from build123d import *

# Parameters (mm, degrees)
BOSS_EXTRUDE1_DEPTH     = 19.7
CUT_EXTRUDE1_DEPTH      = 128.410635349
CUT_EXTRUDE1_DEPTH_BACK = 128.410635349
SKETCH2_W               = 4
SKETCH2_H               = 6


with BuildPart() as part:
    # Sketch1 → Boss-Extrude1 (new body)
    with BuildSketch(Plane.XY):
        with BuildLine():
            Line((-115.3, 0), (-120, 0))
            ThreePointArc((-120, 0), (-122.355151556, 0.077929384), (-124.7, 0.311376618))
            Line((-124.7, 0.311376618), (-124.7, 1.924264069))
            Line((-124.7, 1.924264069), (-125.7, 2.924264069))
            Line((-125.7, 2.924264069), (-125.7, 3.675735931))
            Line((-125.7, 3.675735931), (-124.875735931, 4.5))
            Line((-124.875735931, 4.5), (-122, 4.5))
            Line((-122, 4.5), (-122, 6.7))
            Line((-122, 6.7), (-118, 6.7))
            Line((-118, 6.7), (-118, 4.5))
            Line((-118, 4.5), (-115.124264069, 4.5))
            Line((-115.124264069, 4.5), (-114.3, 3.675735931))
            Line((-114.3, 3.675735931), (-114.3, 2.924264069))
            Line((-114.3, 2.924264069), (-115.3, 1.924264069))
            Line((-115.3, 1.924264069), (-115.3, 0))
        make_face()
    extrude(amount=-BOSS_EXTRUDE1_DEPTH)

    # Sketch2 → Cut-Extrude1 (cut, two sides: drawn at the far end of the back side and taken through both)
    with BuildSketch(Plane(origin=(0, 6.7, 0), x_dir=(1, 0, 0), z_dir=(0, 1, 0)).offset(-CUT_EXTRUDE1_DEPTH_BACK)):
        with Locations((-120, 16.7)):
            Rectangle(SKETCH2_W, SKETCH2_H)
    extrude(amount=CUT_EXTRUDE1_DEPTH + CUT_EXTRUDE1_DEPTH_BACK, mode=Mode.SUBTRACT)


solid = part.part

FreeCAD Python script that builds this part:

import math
import FreeCAD as App
import Part
import Sketcher
from FreeCAD import Vector

doc = App.newDocument("Part")
body = doc.addObject("PartDesign::Body", "Body")

# Sketch on XY plane
sketch1 = doc.addObject("Sketcher::SketchObject", "Sketch")
body.addObject(sketch1)
sketch1.AttachmentSupport = (doc.XY_Plane, [""])
sketch1.MapMode = "FlatFace"
sketch1.addGeometry([
    Part.LineSegment(Vector(-120, 0, 0), Vector(-115.3, 0, 0)),  # 0
    Part.LineSegment(Vector(-115.3, 0, 0), Vector(-115.3, 1.9, 0)),  # 1
    Part.LineSegment(Vector(-115.3, 1.9, 0), Vector(-114.3, 2.9, 0)),  # 2
    Part.LineSegment(Vector(-114.3, 2.9, 0), Vector(-114.3, 3.7, 0)),  # 3
    Part.LineSegment(Vector(-114.3, 3.7, 0), Vector(-115.1, 4.5, 0)),  # 4
    Part.LineSegment(Vector(-115.1, 4.5, 0), Vector(-118, 4.5, 0)),  # 5
    Part.LineSegment(Vector(-118, 4.5, 0), Vector(-118, 6.7, 0)),  # 6
    Part.LineSegment(Vector(-118, 6.7, 0), Vector(-122, 6.7, 0)),  # 7
    Part.LineSegment(Vector(-122, 6.7, 0), Vector(-122, 4.5, 0)),  # 8
    Part.LineSegment(Vector(-122, 4.5, 0), Vector(-124.9, 4.5, 0)),  # 9
    Part.LineSegment(Vector(-124.9, 4.5, 0), Vector(-125.7, 3.7, 0)),  # 10
    Part.LineSegment(Vector(-125.7, 3.7, 0), Vector(-125.7, 2.9, 0)),  # 11
    Part.LineSegment(Vector(-125.7, 2.9, 0), Vector(-124.7, 1.9, 0)),  # 12
    Part.LineSegment(Vector(-124.7, 1.9, 0), Vector(-124.7, 0.3, 0)),  # 13
    Part.ArcOfCircle(Part.Circle(Vector(-120, 35.6, 0), Vector(0, 0, 1), 35.6), math.radians(-97.58), math.radians(-90)),  # 14
], False)
sketch1.addConstraint([
    Sketcher.Constraint("Coincident", 0, 2, 1, 1),
    Sketcher.Constraint("Coincident", 1, 2, 2, 1),
    Sketcher.Constraint("Coincident", 2, 2, 3, 1),
    Sketcher.Constraint("Coincident", 3, 2, 4, 1),
    Sketcher.Constraint("Coincident", 4, 2, 5, 1),
    Sketcher.Constraint("Coincident", 5, 2, 6, 1),
    Sketcher.Constraint("Coincident", 6, 2, 7, 1),
    Sketcher.Constraint("Coincident", 7, 2, 8, 1),
    Sketcher.Constraint("Coincident", 8, 2, 9, 1),
    Sketcher.Constraint("Coincident", 9, 2, 10, 1),
    Sketcher.Constraint("Coincident", 10, 2, 11, 1),
    Sketcher.Constraint("Coincident", 11, 2, 12, 1),
    Sketcher.Constraint("Coincident", 12, 2, 13, 1),
    Sketcher.Constraint("Coincident", 13, 2, 14, 1),
    Sketcher.Constraint("Tangent", 14, 2, 0, 1),
    Sketcher.Constraint("Horizontal", 0),
    Sketcher.Constraint("Vertical", 1),
    Sketcher.Constraint("Vertical", 3),
    Sketcher.Constraint("Horizontal", 5),
    Sketcher.Constraint("Vertical", 6),
    Sketcher.Constraint("Horizontal", 7),
    Sketcher.Constraint("Vertical", 8),
    Sketcher.Constraint("Horizontal", 9),
    Sketcher.Constraint("Vertical", 11),
    Sketcher.Constraint("Vertical", 13),
    Sketcher.Constraint("PointOnObject", 0, 2, -1),
    Sketcher.Constraint("Perpendicular", 2, 4),
    Sketcher.Constraint("Perpendicular", 4, 10),
    Sketcher.Constraint("Perpendicular", 10, 12),
    Sketcher.Constraint("Horizontal", 5, 2, 8, 2),
    Sketcher.Constraint("Horizontal", 3, 2, 10, 2),
    Sketcher.Constraint("Horizontal", 2, 2, 11, 2),
    Sketcher.Constraint("Horizontal", 1, 2, 12, 2),
    Sketcher.Constraint("Equal", 5, 9),
    Sketcher.Constraint("Equal", 4, 10),
    Sketcher.Constraint("DistanceX", 7, 2, 7, 1, 4.0),
    Sketcher.Constraint("DistanceX", 0, 1, 0, 2, 4.7),
    Sketcher.Constraint("DistanceY", 6, 1, 6, 2, 2.2),
    Sketcher.Constraint("DistanceX", 14, 3, -1, 1, 120.0),
    Sketcher.Constraint("DistanceX", 5, 2, -1, 1, 118.0),
    Sketcher.Constraint("DistanceX", 1, 2, 2, 2, 1.0),
    Sketcher.Constraint("DistanceY", -1, 1, 4, 2, 4.5),
    Sketcher.Constraint("Radius", 14, 35.627202),
    Sketcher.Constraint("DistanceY", 3, 1, 3, 2, 0.751472),
    Sketcher.Constraint("DistanceX", 5, 2, 5, 1, 2.875736),
])
pad1 = doc.addObject("PartDesign::Pad", "Pad")
body.addObject(pad1)
pad1.Profile = sketch1
pad1.Length = 19.7
pad1.Reversed = True

# Sketch on XZ plane
sketch2 = doc.addObject("Sketcher::SketchObject", "Sketch001")
body.addObject(sketch2)
sketch2.AttachmentSupport = (doc.XZ_Plane, [""])
sketch2.MapMode = "FlatFace"
sketch2.AttachmentOffset = App.Placement(Vector(0, 0, -6.7), App.Rotation())
sketch2.addGeometry([
    Part.LineSegment(Vector(-122, -19.7, 0), Vector(-122, -13.7, 0)),
    Part.LineSegment(Vector(-122, -13.7, 0), Vector(-118, -13.7, 0)),
    Part.LineSegment(Vector(-118, -13.7, 0), Vector(-118, -19.7, 0)),
    Part.LineSegment(Vector(-118, -19.7, 0), Vector(-122, -19.7, 0)),
], False)
sketch2.addConstraint([
    Sketcher.Constraint("Coincident", 0, 2, 1, 1),
    Sketcher.Constraint("Coincident", 1, 2, 2, 1),
    Sketcher.Constraint("Coincident", 2, 2, 3, 1),
    Sketcher.Constraint("Coincident", 3, 2, 0, 1),
    Sketcher.Constraint("Vertical", 0),
    Sketcher.Constraint("Horizontal", 1),
    Sketcher.Constraint("Vertical", 2),
    Sketcher.Constraint("Horizontal", 3),
    Sketcher.Constraint("DistanceX", 1, 1, 1, 2, 4.0),
    Sketcher.Constraint("DistanceY", 0, 1, 0, 2, 6.0),
    Sketcher.Constraint("DistanceX", 0, 2, -1, 1, 122.0),
    Sketcher.Constraint("DistanceY", 0, 2, -1, 1, 13.7),
])
pocket1 = doc.addObject("PartDesign::Pocket", "Pocket")
body.addObject(pocket1)
pocket1.Profile = sketch2
pocket1.Type = "ThroughAll"
pocket1.Midplane = True

doc.recompute()
